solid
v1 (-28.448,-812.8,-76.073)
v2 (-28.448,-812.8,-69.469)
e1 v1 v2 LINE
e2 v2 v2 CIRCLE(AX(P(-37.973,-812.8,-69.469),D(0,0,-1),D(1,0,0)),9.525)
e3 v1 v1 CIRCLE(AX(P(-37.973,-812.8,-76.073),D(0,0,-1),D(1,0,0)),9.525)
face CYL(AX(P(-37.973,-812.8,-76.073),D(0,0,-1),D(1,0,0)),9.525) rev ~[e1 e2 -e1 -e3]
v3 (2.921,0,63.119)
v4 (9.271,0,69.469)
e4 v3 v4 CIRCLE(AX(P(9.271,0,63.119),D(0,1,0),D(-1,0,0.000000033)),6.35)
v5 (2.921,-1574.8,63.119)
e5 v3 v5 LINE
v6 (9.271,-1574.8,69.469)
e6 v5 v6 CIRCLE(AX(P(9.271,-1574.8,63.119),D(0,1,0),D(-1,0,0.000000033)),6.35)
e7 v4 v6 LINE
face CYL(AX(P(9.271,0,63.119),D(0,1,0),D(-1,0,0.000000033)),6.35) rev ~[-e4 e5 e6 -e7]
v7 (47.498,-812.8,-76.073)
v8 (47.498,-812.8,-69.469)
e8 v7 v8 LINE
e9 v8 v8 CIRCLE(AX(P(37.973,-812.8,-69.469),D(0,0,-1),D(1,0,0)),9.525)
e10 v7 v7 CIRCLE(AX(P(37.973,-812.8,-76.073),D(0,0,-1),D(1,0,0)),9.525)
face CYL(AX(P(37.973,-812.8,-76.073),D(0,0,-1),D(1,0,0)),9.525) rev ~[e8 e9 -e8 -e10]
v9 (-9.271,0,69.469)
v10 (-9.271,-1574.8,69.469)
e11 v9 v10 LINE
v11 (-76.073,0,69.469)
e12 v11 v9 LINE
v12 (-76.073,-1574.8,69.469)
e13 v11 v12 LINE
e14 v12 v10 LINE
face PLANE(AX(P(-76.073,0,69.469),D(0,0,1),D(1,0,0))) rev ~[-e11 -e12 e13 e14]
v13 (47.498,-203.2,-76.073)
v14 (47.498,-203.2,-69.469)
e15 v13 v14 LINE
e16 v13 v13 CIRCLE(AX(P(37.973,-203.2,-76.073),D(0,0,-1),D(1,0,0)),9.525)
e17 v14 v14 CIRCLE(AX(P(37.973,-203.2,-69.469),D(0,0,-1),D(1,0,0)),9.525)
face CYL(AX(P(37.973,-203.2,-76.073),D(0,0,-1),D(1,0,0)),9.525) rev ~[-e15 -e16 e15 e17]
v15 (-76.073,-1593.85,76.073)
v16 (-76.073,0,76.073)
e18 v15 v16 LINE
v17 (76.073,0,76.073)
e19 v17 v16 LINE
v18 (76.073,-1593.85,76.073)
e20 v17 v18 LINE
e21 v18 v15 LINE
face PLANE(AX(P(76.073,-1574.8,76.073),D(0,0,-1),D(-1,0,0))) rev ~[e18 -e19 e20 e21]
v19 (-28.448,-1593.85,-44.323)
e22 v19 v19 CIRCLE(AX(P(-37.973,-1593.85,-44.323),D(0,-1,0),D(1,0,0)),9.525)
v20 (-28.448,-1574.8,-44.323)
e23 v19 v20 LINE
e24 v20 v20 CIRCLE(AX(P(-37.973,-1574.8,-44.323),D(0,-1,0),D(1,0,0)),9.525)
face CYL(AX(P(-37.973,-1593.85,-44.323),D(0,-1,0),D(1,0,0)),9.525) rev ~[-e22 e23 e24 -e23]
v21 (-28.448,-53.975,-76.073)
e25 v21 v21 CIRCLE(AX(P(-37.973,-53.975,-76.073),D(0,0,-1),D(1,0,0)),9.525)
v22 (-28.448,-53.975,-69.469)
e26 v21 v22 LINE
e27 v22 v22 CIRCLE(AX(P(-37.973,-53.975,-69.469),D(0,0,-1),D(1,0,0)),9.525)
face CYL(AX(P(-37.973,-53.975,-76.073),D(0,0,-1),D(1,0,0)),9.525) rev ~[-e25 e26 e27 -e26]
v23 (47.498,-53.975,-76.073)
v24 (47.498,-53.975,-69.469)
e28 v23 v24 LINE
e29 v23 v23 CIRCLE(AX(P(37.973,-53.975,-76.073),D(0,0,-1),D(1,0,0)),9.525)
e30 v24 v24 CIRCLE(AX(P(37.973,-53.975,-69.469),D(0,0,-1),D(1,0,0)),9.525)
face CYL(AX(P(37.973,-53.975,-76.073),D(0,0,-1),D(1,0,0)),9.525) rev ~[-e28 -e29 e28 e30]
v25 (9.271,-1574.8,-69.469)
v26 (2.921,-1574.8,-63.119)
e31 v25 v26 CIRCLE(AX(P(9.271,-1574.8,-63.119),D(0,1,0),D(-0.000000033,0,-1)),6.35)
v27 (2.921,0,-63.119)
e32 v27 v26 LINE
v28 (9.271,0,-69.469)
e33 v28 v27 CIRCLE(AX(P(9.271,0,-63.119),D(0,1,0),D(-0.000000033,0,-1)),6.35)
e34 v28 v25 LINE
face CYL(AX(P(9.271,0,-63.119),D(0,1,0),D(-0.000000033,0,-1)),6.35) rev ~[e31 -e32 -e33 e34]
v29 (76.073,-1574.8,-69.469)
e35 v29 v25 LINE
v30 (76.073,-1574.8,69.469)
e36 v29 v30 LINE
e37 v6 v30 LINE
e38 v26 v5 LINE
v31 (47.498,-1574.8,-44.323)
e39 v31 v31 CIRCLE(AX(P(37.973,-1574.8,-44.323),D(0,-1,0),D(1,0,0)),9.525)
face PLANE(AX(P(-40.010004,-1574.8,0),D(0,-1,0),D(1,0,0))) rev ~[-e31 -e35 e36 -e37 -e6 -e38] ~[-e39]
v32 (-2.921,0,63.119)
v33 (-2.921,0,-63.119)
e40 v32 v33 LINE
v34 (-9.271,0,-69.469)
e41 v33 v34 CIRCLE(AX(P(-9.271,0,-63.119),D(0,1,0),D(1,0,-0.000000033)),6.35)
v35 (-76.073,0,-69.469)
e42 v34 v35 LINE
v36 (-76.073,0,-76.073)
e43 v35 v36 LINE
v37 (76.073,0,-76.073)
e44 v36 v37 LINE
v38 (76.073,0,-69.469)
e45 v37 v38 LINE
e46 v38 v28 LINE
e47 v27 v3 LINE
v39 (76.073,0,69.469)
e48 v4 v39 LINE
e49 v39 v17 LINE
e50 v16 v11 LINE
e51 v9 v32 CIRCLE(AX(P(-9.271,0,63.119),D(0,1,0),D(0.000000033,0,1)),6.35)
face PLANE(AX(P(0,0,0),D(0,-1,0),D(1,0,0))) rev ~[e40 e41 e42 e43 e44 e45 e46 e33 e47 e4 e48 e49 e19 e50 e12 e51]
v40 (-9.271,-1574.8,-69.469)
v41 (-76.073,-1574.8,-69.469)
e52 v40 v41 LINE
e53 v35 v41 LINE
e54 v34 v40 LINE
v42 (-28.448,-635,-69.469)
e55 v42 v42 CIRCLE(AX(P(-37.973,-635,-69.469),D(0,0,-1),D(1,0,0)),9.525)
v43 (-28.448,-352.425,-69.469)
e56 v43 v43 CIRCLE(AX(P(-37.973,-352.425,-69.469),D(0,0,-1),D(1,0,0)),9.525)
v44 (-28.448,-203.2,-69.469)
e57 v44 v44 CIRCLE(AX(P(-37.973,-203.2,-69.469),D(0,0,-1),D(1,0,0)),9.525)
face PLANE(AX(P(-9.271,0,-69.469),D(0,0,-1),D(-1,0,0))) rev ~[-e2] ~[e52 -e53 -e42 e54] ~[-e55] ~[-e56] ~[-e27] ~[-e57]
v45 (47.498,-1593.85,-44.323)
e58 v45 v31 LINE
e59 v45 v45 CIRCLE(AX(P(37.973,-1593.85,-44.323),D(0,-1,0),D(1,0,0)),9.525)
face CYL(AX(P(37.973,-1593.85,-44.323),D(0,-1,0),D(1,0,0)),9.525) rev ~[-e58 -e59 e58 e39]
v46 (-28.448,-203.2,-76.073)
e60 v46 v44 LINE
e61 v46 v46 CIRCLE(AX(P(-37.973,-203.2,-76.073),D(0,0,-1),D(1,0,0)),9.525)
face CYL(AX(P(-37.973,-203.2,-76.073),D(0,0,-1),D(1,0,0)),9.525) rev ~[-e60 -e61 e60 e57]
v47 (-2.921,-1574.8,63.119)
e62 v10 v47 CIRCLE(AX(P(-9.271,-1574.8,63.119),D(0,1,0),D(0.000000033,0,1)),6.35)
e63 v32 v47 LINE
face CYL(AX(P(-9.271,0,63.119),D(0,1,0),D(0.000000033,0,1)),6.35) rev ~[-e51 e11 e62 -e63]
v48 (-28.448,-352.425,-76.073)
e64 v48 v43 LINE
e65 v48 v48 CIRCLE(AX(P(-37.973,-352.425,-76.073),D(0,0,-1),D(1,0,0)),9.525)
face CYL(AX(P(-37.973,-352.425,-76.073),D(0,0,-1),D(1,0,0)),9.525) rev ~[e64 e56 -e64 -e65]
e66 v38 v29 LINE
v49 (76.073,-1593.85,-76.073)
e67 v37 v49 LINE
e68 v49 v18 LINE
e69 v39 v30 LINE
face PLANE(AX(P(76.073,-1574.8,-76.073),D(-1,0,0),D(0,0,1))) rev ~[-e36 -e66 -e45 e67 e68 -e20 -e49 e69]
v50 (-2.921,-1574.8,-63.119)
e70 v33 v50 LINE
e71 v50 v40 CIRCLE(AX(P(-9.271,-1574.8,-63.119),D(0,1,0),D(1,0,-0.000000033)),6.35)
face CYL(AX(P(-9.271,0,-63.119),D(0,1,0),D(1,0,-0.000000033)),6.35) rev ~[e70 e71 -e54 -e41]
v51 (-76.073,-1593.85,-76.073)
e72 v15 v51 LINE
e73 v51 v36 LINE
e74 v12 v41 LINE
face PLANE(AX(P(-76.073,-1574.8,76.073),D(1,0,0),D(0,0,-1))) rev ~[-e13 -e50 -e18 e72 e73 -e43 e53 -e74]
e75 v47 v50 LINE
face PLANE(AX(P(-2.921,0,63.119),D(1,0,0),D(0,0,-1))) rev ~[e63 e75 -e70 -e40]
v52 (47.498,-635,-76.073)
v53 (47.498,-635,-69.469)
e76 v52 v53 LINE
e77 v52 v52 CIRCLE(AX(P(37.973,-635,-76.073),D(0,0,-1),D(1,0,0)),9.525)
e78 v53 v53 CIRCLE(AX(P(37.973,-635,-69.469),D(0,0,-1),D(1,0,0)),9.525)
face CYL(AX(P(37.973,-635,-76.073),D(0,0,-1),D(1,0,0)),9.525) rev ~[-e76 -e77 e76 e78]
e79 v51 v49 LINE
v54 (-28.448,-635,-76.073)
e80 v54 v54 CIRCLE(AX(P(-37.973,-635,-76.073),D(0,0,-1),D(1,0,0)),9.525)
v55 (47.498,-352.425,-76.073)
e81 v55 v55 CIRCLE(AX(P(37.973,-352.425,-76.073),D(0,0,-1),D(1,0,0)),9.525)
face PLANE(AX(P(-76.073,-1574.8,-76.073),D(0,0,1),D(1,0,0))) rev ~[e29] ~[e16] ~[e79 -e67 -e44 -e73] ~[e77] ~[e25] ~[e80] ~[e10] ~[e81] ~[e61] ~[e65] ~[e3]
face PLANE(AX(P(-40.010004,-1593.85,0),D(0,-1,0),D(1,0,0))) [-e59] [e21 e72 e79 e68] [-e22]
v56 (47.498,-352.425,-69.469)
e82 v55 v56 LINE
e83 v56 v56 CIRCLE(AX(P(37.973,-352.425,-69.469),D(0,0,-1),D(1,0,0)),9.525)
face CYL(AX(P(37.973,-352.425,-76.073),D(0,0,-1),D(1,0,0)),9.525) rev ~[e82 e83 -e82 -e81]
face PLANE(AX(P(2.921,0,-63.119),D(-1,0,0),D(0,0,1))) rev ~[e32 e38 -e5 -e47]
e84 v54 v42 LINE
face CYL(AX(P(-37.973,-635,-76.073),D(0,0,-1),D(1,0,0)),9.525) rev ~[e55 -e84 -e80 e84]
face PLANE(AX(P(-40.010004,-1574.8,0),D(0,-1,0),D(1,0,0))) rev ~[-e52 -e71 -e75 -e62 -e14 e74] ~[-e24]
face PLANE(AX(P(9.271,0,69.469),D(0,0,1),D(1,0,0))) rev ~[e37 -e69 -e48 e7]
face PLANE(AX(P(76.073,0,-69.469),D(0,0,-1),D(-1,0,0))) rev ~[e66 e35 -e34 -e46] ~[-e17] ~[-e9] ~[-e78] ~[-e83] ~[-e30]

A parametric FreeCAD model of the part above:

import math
import FreeCAD as App
import Part
import Sketcher
from FreeCAD import Vector
Q = App.Units.Quantity


def add_polygon(sketch, points):
    """Adds a closed chain of lines whose ends are joined by coincident constraints."""
    first, n = sketch.GeometryCount, len(points)
    for a, b in zip(points, points[1:] + points[:1]):
        sketch.addGeometry(Part.LineSegment(App.Vector(*a, 0), App.Vector(*b, 0)), False)
    for i in range(n):
        sketch.addConstraint(Sketcher.Constraint("Coincident", first + i, 2, first + (i + 1) % n, 1))

doc = App.newDocument("Part")
params = doc.addObject("Spreadsheet::Sheet", "Params")
for row, (alias, value) in enumerate([
    ("sketch1_radius", "0.25 in"),
    ("sketch1_width", "5.99 in"),
    ("sketch1_width2", "2.63 in"),
    ("sketch1_height", "0.26 in"),
    ("sketch1_height2", "4.97 in"),
    ("pad1_length", "62 in"),
    ("sketch2_width", "5.99 in"),
    ("pad2_length", "0.75 in"),
    ("sketch3_diameter", "0.75 in"),
    ("pocket1_length", "1.73 in"),
    ("sketch4_diameter", "0.75 in"),
    ("pocket2_length", "1 in"),
], start=1):
    params.set(f"A{row}", alias)
    params.set(f"B{row}", "=" + value)
    params.setAlias(f"B{row}", alias)

body = doc.addObject("PartDesign::Body", "Body")

sketch1 = body.newObject("Sketcher::SketchObject", "Sketch")
sketch1.AttachmentSupport = (doc.getObject("XZ_Plane"), [""])
sketch1.MapMode = "FlatFace"
sketch1.addGeometry([
    Part.LineSegment(Vector(76, 76, 0), Vector(-76, 76, 0)),
    Part.LineSegment(Vector(-76, 76, 0), Vector(-76, 69, 0)),
    Part.LineSegment(Vector(-76, 69, 0), Vector(-9, 69, 0)),
    Part.ArcOfCircle(Part.Circle(Vector(-9, 63, 0), Vector(0, 0, 1), 6), math.radians(0), math.radians(90)),
    Part.LineSegment(Vector(-3, 63, 0), Vector(-3, -63, 0)),
    Part.ArcOfCircle(Part.Circle(Vector(-9, -63, 0), Vector(0, 0, 1), 6), math.radians(-90), math.radians(0)),
    Part.LineSegment(Vector(-9, -69, 0), Vector(-76, -69, 0)),
    Part.LineSegment(Vector(-76, -69, 0), Vector(-76, -76, 0)),
    Part.LineSegment(Vector(-76, -76, 0), Vector(76, -76, 0)),
    Part.LineSegment(Vector(76, -76, 0), Vector(76, -69, 0)),
    Part.LineSegment(Vector(76, -69, 0), Vector(9, -69, 0)),
    Part.ArcOfCircle(Part.Circle(Vector(9, -63, 0), Vector(0, 0, 1), 6), math.radians(-180), math.radians(-90)),
    Part.LineSegment(Vector(3, -63, 0), Vector(3, 63, 0)),
    Part.ArcOfCircle(Part.Circle(Vector(9, 63, 0), Vector(0, 0, 1), 6), math.radians(90), math.radians(180)),
    Part.LineSegment(Vector(9, 69, 0), Vector(76, 69, 0)),
    Part.LineSegment(Vector(76, 69, 0), Vector(76, 76, 0)),
], False)
sketch1.addConstraint([
    Sketcher.Constraint("Coincident", 0, 2, 1, 1),
    Sketcher.Constraint("Coincident", 1, 2, 2, 1),
    Sketcher.Constraint("Tangent", 2, 2, 3, 2),
    Sketcher.Constraint("Tangent", 3, 1, 4, 1),
    Sketcher.Constraint("Tangent", 4, 2, 5, 2),
    Sketcher.Constraint("Tangent", 5, 1, 6, 1),
    Sketcher.Constraint("Coincident", 6, 2, 7, 1),
    Sketcher.Constraint("Coincident", 7, 2, 8, 1),
    Sketcher.Constraint("Coincident", 8, 2, 9, 1),
    Sketcher.Constraint("Coincident", 9, 2, 10, 1),
    Sketcher.Constraint("Tangent", 10, 2, 11, 2),
    Sketcher.Constraint("Tangent", 11, 1, 12, 1),
    Sketcher.Constraint("Tangent", 12, 2, 13, 2),
    Sketcher.Constraint("Tangent", 13, 1, 14, 1),
    Sketcher.Constraint("Coincident", 14, 2, 15, 1),
    Sketcher.Constraint("Coincident", 15, 2, 0, 1),
    Sketcher.Constraint("Horizontal", 0),
    Sketcher.Constraint("Vertical", 1),
    Sketcher.Constraint("Horizontal", 2),
    Sketcher.Constraint("Vertical", 4),
    Sketcher.Constraint("Horizontal", 6),
    Sketcher.Constraint("Vertical", 7),
    Sketcher.Constraint("Horizontal", 8),
    Sketcher.Constraint("Vertical", 9),
    Sketcher.Constraint("Horizontal", 10),
    Sketcher.Constraint("Vertical", 12),
    Sketcher.Constraint("Horizontal", 14),
    Sketcher.Constraint("Vertical", 15),
    Sketcher.Constraint("Equal", 3, 5),
    Sketcher.Constraint("Equal", 5, 11),
    Sketcher.Constraint("Equal", 11, 13),
    Sketcher.Constraint("Symmetric", 3, 3, 11, 3, -1, 1),
    Sketcher.Constraint("Symmetric", 0, 2, 8, 2, -1, 1),
    Sketcher.Constraint("Symmetric", 6, 2, 14, 2, -1, 1),
    Sketcher.Constraint("Symmetric", 6, 2, 9, 2, -2),
    Sketcher.Constraint("Radius", 3, Q("0.25 in")),
    Sketcher.Constraint("DistanceX", 0, 2, 0, 1, Q("5.99 in")),
    Sketcher.Constraint("DistanceX", 2, 1, 2, 2, Q("2.63 in")),
    Sketcher.Constraint("DistanceY", 1, 2, 1, 1, Q("0.26 in")),
    Sketcher.Constraint("DistanceY", 4, 2, 4, 1, Q("4.97 in")),
])
sketch1.setExpression("Constraints[35]", "Params.sketch1_radius")
sketch1.setExpression("Constraints[36]", "Params.sketch1_width")
sketch1.setExpression("Constraints[37]", "Params.sketch1_width2")
sketch1.setExpression("Constraints[38]", "Params.sketch1_height")
sketch1.setExpression("Constraints[39]", "Params.sketch1_height2")
pad1 = body.newObject("PartDesign::Pad", "Pad")
pad1.Profile = sketch1
pad1.setExpression("Length", "Params.pad1_length")

sketch2 = body.newObject("Sketcher::SketchObject", "Sketch001")
sketch2.AttachmentSupport = (doc.getObject("XZ_Plane"), [""])
sketch2.MapMode = "FlatFace"
sketch2.AttachmentOffset = App.Placement(Vector(0, 0, 62 * 25.4), App.Rotation())
add_polygon(sketch2, [(-76, -76), (76, -76), (76, 76), (-76, 76)])
sketch2.addConstraint([
    Sketcher.Constraint("Horizontal", 0),
    Sketcher.Constraint("Vertical", 1),
    Sketcher.Constraint("Horizontal", 2),
    Sketcher.Constraint("Vertical", 3),
    Sketcher.Constraint("Symmetric", 0, 2, 2, 2, -1, 1),
    Sketcher.Constraint("Equal", 2, 1),
    Sketcher.Constraint("DistanceX", 0, 1, 0, 2, Q("5.99 in")),
])
sketch2.setExpression("Constraints[10]", "Params.sketch2_width")
pad2 = body.newObject("PartDesign::Pad", "Pad001")
pad2.Profile = sketch2
pad2.setExpression("Length", "Params.pad2_length")

sketch3 = body.newObject("Sketcher::SketchObject", "Sketch002")
sketch3.AttachmentSupport = (doc.getObject("XZ_Plane"), [""])
sketch3.MapMode = "FlatFace"
sketch3.AttachmentOffset = App.Placement(Vector(0, 0, 62.75 * 25.4), App.Rotation())
sketch3.addGeometry([
    Part.Circle(Vector(-38, -44, 0), Vector(0, 0, 1), 10),
    Part.Circle(Vector(38, -44, 0), Vector(0, 0, 1), 10),
], False)
sketch3.addConstraint([
    Sketcher.Constraint("Equal", 0, 1),
    Sketcher.Constraint("Symmetric", 0, 3, 1, 3, -2),
    Sketcher.Constraint("Diameter", 0, Q("0.75 in")),
    Sketcher.Constraint("DistanceX", 0, 3, 1, 3, Q("2.99 in")),
    Sketcher.Constraint("DistanceY", 0, 3, -1, 1, Q("1.745 in")),
])
sketch3.setExpression("Constraints[2]", "Params.sketch3_diameter")
pocket1 = body.newObject("PartDesign::Pocket", "Pocket")
pocket1.Profile = sketch3
pocket1.setExpression("Length", "Params.pocket1_length")

sketch4 = body.newObject("Sketcher::SketchObject", "Sketch003")
sketch4.AttachmentSupport = (doc.getObject("XY_Plane"), [""])
sketch4.MapMode = "FlatFace"
sketch4.AttachmentOffset = App.Placement(Vector(0, 0, -2.995 * 25.4), App.Rotation())
sketch4.addGeometry([
    Part.Circle(Vector(-38, -813, 0), Vector(0, 0, 1), 10),
    Part.Circle(Vector(38, -813, 0), Vector(0, 0, 1), 10),
    Part.Circle(Vector(-38, -635, 0), Vector(0, 0, 1), 10),
    Part.Circle(Vector(38, -635, 0), Vector(0, 0, 1), 10),
    Part.Circle(Vector(-38, -352, 0), Vector(0, 0, 1), 10),
    Part.Circle(Vector(38, -352, 0), Vector(0, 0, 1), 10),
    Part.Circle(Vector(-38, -203, 0), Vector(0, 0, 1), 10),
    Part.Circle(Vector(38, -203, 0), Vector(0, 0, 1), 10),
    Part.Circle(Vector(-38, -54, 0), Vector(0, 0, 1), 10),
    Part.Circle(Vector(38, -54, 0), Vector(0, 0, 1), 10),
], False)
sketch4.addConstraint([
    Sketcher.Constraint("Equal", 0, 1),
    Sketcher.Constraint("Equal", 1, 2),
    Sketcher.Constraint("Equal", 2, 3),
    Sketcher.Constraint("Equal", 3, 4),
    Sketcher.Constraint("Equal", 4, 5),
    Sketcher.Constraint("Equal", 5, 6),
    Sketcher.Constraint("Equal", 6, 7),
    Sketcher.Constraint("Equal", 7, 8),
    Sketcher.Constraint("Equal", 8, 9),
    Sketcher.Constraint("Symmetric", 0, 3, 1, 3, -2),
    Sketcher.Constraint("Symmetric", 2, 3, 3, 3, -2),
    Sketcher.Constraint("Symmetric", 4, 3, 5, 3, -2),
    Sketcher.Constraint("Symmetric", 6, 3, 7, 3, -2),
    Sketcher.Constraint("Symmetric", 8, 3, 9, 3, -2),
    Sketcher.Constraint("Vertical", 0, 3, 2, 3),
    Sketcher.Constraint("Vertical", 2, 3, 4, 3),
    Sketcher.Constraint("Vertical", 4, 3, 6, 3),
    Sketcher.Constraint("Vertical", 6, 3, 8, 3),
    Sketcher.Constraint("Diameter", 0, Q("0.75 in")),
    Sketcher.Constraint("DistanceY", 0, 3, -1, 1, Q("32 in")),
    Sketcher.Constraint("DistanceY", 2, 3, -1, 1, Q("25 in")),
    Sketcher.Constraint("DistanceY", 6, 3, -1, 1, Q("8 in")),
    Sketcher.Constraint("DistanceX", 0, 3, 1, 3, Q("2.99 in")),
    Sketcher.Constraint("DistanceY", 4, 3, 8, 3, Q("11.75 in")),
    Sketcher.Constraint("DistanceY", 4, 3, -1, 1, Q("13.875 in")),
])
sketch4.setExpression("Constraints[18]", "Params.sketch4_diameter")
pocket2 = body.newObject("PartDesign::Pocket", "Pocket001")
pocket2.Profile = sketch4
pocket2.setExpression("Length", "Params.pocket2_length")
pocket2.Reversed = True

doc.recompute()
